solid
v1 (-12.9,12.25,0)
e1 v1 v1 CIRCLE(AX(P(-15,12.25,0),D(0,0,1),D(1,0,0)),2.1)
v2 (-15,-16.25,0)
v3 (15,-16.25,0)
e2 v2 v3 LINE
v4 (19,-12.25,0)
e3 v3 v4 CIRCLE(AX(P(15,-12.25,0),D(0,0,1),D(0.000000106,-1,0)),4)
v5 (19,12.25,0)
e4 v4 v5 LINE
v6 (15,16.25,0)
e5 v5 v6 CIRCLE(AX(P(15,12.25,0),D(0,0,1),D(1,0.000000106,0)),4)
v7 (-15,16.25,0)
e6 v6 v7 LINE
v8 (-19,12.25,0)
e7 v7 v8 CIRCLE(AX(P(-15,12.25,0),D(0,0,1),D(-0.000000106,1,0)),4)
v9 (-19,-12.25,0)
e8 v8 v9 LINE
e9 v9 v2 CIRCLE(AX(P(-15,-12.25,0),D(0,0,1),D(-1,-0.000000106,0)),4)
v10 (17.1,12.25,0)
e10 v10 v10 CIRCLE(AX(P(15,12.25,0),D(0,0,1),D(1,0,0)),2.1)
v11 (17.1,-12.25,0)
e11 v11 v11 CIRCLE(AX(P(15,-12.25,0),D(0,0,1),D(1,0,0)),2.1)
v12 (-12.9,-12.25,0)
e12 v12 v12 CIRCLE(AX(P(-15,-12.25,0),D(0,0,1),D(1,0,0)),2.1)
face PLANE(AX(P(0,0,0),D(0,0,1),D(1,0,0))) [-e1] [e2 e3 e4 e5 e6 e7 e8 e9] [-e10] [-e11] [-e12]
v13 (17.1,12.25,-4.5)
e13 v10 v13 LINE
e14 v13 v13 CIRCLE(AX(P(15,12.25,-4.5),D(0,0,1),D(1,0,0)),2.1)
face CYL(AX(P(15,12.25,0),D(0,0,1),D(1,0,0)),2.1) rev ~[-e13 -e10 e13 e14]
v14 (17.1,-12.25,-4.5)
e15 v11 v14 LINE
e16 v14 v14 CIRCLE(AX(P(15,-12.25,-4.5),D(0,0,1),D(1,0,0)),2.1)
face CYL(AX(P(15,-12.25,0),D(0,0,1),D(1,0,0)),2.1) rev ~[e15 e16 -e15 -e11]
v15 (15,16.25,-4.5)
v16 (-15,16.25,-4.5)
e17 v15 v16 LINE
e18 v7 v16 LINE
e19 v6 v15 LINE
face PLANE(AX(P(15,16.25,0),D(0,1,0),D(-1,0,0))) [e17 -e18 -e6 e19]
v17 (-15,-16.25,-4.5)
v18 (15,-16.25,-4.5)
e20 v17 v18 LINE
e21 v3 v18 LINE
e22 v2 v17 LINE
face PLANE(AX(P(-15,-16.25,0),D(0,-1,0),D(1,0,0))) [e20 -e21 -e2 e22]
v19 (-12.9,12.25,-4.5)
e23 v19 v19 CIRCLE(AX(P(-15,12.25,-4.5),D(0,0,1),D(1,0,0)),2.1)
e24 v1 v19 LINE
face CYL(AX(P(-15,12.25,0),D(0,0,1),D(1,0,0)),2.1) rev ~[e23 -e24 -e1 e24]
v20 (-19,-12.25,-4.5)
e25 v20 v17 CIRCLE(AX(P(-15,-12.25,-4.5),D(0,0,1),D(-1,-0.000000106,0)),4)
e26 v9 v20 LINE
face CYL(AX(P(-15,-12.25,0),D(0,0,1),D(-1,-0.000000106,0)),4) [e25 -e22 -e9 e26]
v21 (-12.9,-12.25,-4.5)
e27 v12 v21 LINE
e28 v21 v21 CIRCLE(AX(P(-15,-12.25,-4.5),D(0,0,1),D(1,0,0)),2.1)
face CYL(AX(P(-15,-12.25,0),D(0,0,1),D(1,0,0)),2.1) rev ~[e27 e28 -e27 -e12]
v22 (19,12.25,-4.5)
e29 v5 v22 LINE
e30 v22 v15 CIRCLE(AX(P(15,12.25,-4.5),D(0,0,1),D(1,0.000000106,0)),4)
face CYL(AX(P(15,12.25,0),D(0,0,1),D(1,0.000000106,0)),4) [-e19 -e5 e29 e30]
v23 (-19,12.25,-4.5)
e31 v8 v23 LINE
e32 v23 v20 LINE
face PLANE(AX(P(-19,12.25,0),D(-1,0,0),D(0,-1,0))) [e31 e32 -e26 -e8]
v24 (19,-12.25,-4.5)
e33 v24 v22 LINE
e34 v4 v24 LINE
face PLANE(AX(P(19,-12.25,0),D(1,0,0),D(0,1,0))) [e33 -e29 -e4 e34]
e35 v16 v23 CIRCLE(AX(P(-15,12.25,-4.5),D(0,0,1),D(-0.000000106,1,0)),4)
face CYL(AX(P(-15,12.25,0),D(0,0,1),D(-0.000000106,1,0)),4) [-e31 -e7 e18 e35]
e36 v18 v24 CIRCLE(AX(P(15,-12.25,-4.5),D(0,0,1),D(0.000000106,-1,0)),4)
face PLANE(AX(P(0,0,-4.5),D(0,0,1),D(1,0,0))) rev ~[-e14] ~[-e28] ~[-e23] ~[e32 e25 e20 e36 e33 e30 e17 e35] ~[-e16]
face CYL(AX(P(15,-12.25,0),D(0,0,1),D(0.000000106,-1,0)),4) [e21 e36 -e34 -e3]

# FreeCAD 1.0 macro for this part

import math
import FreeCAD as App
import Part
import Sketcher

doc = App.newDocument("Part")
body = doc.addObject("PartDesign::Body", "Body")

# Sketch on XY plane
sketch1 = body.newObject("Sketcher::SketchObject", "Sketch")
sketch1.AttachmentSupport = (doc.getObject("XY_Plane"), [""])
sketch1.MapMode = "FlatFace"
sketch1.addGeometry(Part.LineSegment(App.Vector(15, 16.2, 0), App.Vector(-15, 16.2, 0)), False)
sketch1.addGeometry(Part.ArcOfCircle(Part.Circle(App.Vector(-15, 12.2, 0), App.Vector(0, 0, 1), 4), math.radians(90), math.radians(180)), False)
sketch1.addGeometry(Part.LineSegment(App.Vector(-19, 12.2, 0), App.Vector(-19, -12.2, 0)), False)
sketch1.addGeometry(Part.ArcOfCircle(Part.Circle(App.Vector(-15, -12.2, 0), App.Vector(0, 0, 1), 4), math.radians(-180), math.radians(-90)), False)
sketch1.addGeometry(Part.LineSegment(App.Vector(-15, -16.2, 0), App.Vector(15, -16.2, 0)), False)
sketch1.addGeometry(Part.ArcOfCircle(Part.Circle(App.Vector(15, -12.2, 0), App.Vector(0, 0, 1), 4), math.radians(-90), math.radians(0)), False)
sketch1.addGeometry(Part.LineSegment(App.Vector(19, -12.2, 0), App.Vector(19, 12.2, 0)), False)
sketch1.addGeometry(Part.ArcOfCircle(Part.Circle(App.Vector(15, 12.2, 0), App.Vector(0, 0, 1), 4), math.radians(0), math.radians(90)), False)
sketch1.addGeometry(Part.Circle(App.Vector(-15, -12.2, 0), App.Vector(0, 0, 1), 2.1), False)
sketch1.addGeometry(Part.Circle(App.Vector(15, -12.2, 0), App.Vector(0, 0, 1), 2.1), False)
sketch1.addGeometry(Part.Circle(App.Vector(-15, 12.2, 0), App.Vector(0, 0, 1), 2.1), False)
sketch1.addGeometry(Part.Circle(App.Vector(15, 12.2, 0), App.Vector(0, 0, 1), 2.1), False)
sketch1.addConstraint(Sketcher.Constraint("Tangent", 0, 2, 1, 1))
sketch1.addConstraint(Sketcher.Constraint("Tangent", 1, 2, 2, 1))
sketch1.addConstraint(Sketcher.Constraint("Tangent", 2, 2, 3, 1))
sketch1.addConstraint(Sketcher.Constraint("Tangent", 3, 2, 4, 1))
sketch1.addConstraint(Sketcher.Constraint("Tangent", 4, 2, 5, 1))
sketch1.addConstraint(Sketcher.Constraint("Tangent", 5, 2, 6, 1))
sketch1.addConstraint(Sketcher.Constraint("Tangent", 6, 2, 7, 1))
sketch1.addConstraint(Sketcher.Constraint("Tangent", 7, 2, 0, 1))
sketch1.addConstraint(Sketcher.Constraint("Horizontal", 0))
sketch1.addConstraint(Sketcher.Constraint("Vertical", 2))
sketch1.addConstraint(Sketcher.Constraint("Horizontal", 4))
sketch1.addConstraint(Sketcher.Constraint("Vertical", 6))
sketch1.addConstraint(Sketcher.Constraint("Coincident", 8, 3, 3, 3))
sketch1.addConstraint(Sketcher.Constraint("Coincident", 9, 3, 5, 3))
sketch1.addConstraint(Sketcher.Constraint("Coincident", 10, 3, 1, 3))
sketch1.addConstraint(Sketcher.Constraint("Coincident", 11, 3, 7, 3))
sketch1.addConstraint(Sketcher.Constraint("Equal", 1, 3))
sketch1.addConstraint(Sketcher.Constraint("Equal", 3, 5))
sketch1.addConstraint(Sketcher.Constraint("Equal", 5, 7))
sketch1.addConstraint(Sketcher.Constraint("Equal", 8, 9))
sketch1.addConstraint(Sketcher.Constraint("Equal", 9, 10))
sketch1.addConstraint(Sketcher.Constraint("Equal", 10, 11))
sketch1.addConstraint(Sketcher.Constraint("Symmetric", 1, 3, 5, 3, -1, 1))
sketch1.addConstraint(Sketcher.Constraint("Radius", 1, 4.0))
sketch1.addConstraint(Sketcher.Constraint("Diameter", 8, 4.2))
sketch1.addConstraint(Sketcher.Constraint("DistanceX", 0, 2, 0, 1, 30.0))
sketch1.addConstraint(Sketcher.Constraint("DistanceY", 2, 2, 2, 1, 24.5))
pad1 = body.newObject("PartDesign::Pad", "Pad")
pad1.Profile = sketch1
pad1.Length = 4.5
pad1.Reversed = True

doc.recompute()
